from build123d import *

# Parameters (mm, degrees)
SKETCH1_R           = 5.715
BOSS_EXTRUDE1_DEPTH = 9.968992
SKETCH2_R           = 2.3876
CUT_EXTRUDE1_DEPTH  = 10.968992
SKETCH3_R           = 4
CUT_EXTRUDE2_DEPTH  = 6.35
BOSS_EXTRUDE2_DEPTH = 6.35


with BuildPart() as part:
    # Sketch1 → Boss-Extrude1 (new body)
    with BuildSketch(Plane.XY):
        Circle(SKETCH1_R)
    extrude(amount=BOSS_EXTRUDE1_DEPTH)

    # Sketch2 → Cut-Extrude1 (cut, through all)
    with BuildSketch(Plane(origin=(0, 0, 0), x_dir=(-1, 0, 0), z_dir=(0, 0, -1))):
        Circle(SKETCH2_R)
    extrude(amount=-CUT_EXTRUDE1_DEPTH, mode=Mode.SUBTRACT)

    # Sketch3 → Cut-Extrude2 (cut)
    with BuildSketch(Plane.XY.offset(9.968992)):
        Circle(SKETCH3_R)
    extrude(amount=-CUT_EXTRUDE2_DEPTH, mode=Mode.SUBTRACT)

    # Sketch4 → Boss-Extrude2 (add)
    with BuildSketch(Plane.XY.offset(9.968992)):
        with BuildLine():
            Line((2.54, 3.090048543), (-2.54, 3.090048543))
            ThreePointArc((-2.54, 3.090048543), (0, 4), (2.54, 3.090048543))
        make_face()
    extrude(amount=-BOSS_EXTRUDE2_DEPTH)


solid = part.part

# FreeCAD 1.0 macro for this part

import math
import FreeCAD as App
import Part
import Sketcher

V = App.Vector
Q = App.Units.Quantity

doc = App.newDocument("Part")
body = doc.addObject("PartDesign::Body", "Body")

# Sketch on XY plane
sketch1 = body.newObject("Sketcher::SketchObject", "Sketch")
sketch1.AttachmentSupport = (doc.getObject("XY_Plane"), [""])
sketch1.MapMode = "FlatFace"
sketch1.addGeometry(Part.Circle(V(0, 0, 0), V(0, 0, 1), 6), False)
sketch1.addConstraint(Sketcher.Constraint("Coincident", 0, 3, -1, 1))
sketch1.addConstraint(Sketcher.Constraint("Diameter", 0, Q("0.45 in")))
pad1 = body.newObject("PartDesign::Pad", "Pad")
pad1.Profile = sketch1
pad1.Length = 9.968992

# Sketch on XY plane
sketch2 = body.newObject("Sketcher::SketchObject", "Sketch001")
sketch2.AttachmentSupport = (doc.getObject("XY_Plane"), [""])
sketch2.MapMode = "FlatFace"
sketch2.addGeometry(Part.Circle(V(0, 0, 0), V(0, 0, 1), 2.4), False)
sketch2.addConstraint(Sketcher.Constraint("Coincident", 0, 3, -1, 1))
sketch2.addConstraint(Sketcher.Constraint("Diameter", 0, Q("0.188 in")))
pocket1 = body.newObject("PartDesign::Pocket", "Pocket")
pocket1.Profile = sketch2
pocket1.Type = "ThroughAll"
pocket1.Reversed = True

# Sketch on XY plane
sketch3 = body.newObject("Sketcher::SketchObject", "Sketch002")
sketch3.AttachmentSupport = (doc.getObject("XY_Plane"), [""])
sketch3.MapMode = "FlatFace"
sketch3.AttachmentOffset = App.Placement(V(0, 0, 9.968992), App.Rotation())
sketch3.addGeometry(Part.Circle(V(0, 0, 0), V(0, 0, 1), 4), False)
sketch3.addConstraint(Sketcher.Constraint("Coincident", 0, 3, -1, 1))
sketch3.addConstraint(Sketcher.Constraint("Diameter", 0, Q("8 mm")))
pocket2 = body.newObject("PartDesign::Pocket", "Pocket001")
pocket2.Profile = sketch3
pocket2.Length = Q("0.25 in")

# Sketch on XY plane
sketch4 = body.newObject("Sketcher::SketchObject", "Sketch003")
sketch4.AttachmentSupport = (doc.getObject("XY_Plane"), [""])
sketch4.MapMode = "FlatFace"
sketch4.AttachmentOffset = App.Placement(V(0, 0, 9.968992), App.Rotation())
sketch4.addGeometry(Part.LineSegment(V(-2.5, 3.1, 0), V(2.5, 3.1, 0)), False)
sketch4.addGeometry(Part.ArcOfCircle(Part.Circle(V(0, 0, 0), V(0, 0, 1), 4), math.radians(51), math.radians(129)), False)
sketch4.addConstraint(Sketcher.Constraint("Coincident", 0, 1, 1, 2))
sketch4.addConstraint(Sketcher.Constraint("Coincident", 1, 1, 0, 2))
sketch4.addConstraint(Sketcher.Constraint("Horizontal", 0))
sketch4.addConstraint(Sketcher.Constraint("Coincident", 1, 3, -1, 1))
sketch4.addConstraint(Sketcher.Constraint("DistanceX", 0, 1, 0, 2, Q("0.2 in")))
sketch4.addConstraint(Sketcher.Constraint("Radius", 1, Q("4 mm")))
pad2 = body.newObject("PartDesign::Pad", "Pad001")
pad2.Profile = sketch4
pad2.Length = Q("0.25 in")
pad2.Reversed = True

doc.recompute()
